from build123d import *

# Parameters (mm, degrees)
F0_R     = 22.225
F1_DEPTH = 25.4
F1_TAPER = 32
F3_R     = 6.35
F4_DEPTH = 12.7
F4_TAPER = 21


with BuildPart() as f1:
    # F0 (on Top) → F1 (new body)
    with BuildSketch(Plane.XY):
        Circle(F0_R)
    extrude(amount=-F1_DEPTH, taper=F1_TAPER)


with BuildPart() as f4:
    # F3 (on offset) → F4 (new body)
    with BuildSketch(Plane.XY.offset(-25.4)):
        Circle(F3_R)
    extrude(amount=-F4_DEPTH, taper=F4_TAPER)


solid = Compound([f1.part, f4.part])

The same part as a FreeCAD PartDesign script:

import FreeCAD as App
import Part
import Sketcher
Q = App.Units.Quantity

doc = App.newDocument("Part")
body = doc.addObject("PartDesign::Body", "Body")

sketch1 = doc.addObject("Sketcher::SketchObject", "Sketch")
body.addObject(sketch1)
sketch1.AttachmentSupport = (doc.XY_Plane, [""])
sketch1.MapMode = "FlatFace"
sketch1.addGeometry(Part.Circle(App.Vector(0, 0, 0), App.Vector(0, 0, 1), 22), False)
sketch1.addConstraint([
    Sketcher.Constraint("Coincident", 0, 3, -1, 1),
    Sketcher.Constraint("Diameter", 0, Q("1.75 in")),
])
pad1 = doc.addObject("PartDesign::Pad", "Pad")
body.addObject(pad1)
pad1.Profile = sketch1
pad1.Length = Q("1 in")
pad1.Reversed = True
pad1.TaperAngle = -32
body2 = doc.addObject("PartDesign::Body", "Body001")

sketch2 = doc.addObject("Sketcher::SketchObject", "Sketch001")
body2.addObject(sketch2)
sketch2.AttachmentSupport = (doc.getObject("XY_Plane001"), [""])
sketch2.MapMode = "FlatFace"
sketch2.AttachmentOffset = App.Placement(App.Vector(0, 0, -1 * 25.4), App.Rotation())
sketch2.addGeometry(Part.Circle(App.Vector(0, 0, 0), App.Vector(0, 0, 1), 6), False)
sketch2.addConstraint([
    Sketcher.Constraint("Coincident", 0, 3, -1, 1),
    Sketcher.Constraint("Diameter", 0, Q("0.5 in")),
])
pad2 = doc.addObject("PartDesign::Pad", "Pad001")
body2.addObject(pad2)
pad2.Profile = sketch2
pad2.Length = Q("0.5 in")
pad2.Reversed = True
pad2.TaperAngle = -21

doc.recompute()
